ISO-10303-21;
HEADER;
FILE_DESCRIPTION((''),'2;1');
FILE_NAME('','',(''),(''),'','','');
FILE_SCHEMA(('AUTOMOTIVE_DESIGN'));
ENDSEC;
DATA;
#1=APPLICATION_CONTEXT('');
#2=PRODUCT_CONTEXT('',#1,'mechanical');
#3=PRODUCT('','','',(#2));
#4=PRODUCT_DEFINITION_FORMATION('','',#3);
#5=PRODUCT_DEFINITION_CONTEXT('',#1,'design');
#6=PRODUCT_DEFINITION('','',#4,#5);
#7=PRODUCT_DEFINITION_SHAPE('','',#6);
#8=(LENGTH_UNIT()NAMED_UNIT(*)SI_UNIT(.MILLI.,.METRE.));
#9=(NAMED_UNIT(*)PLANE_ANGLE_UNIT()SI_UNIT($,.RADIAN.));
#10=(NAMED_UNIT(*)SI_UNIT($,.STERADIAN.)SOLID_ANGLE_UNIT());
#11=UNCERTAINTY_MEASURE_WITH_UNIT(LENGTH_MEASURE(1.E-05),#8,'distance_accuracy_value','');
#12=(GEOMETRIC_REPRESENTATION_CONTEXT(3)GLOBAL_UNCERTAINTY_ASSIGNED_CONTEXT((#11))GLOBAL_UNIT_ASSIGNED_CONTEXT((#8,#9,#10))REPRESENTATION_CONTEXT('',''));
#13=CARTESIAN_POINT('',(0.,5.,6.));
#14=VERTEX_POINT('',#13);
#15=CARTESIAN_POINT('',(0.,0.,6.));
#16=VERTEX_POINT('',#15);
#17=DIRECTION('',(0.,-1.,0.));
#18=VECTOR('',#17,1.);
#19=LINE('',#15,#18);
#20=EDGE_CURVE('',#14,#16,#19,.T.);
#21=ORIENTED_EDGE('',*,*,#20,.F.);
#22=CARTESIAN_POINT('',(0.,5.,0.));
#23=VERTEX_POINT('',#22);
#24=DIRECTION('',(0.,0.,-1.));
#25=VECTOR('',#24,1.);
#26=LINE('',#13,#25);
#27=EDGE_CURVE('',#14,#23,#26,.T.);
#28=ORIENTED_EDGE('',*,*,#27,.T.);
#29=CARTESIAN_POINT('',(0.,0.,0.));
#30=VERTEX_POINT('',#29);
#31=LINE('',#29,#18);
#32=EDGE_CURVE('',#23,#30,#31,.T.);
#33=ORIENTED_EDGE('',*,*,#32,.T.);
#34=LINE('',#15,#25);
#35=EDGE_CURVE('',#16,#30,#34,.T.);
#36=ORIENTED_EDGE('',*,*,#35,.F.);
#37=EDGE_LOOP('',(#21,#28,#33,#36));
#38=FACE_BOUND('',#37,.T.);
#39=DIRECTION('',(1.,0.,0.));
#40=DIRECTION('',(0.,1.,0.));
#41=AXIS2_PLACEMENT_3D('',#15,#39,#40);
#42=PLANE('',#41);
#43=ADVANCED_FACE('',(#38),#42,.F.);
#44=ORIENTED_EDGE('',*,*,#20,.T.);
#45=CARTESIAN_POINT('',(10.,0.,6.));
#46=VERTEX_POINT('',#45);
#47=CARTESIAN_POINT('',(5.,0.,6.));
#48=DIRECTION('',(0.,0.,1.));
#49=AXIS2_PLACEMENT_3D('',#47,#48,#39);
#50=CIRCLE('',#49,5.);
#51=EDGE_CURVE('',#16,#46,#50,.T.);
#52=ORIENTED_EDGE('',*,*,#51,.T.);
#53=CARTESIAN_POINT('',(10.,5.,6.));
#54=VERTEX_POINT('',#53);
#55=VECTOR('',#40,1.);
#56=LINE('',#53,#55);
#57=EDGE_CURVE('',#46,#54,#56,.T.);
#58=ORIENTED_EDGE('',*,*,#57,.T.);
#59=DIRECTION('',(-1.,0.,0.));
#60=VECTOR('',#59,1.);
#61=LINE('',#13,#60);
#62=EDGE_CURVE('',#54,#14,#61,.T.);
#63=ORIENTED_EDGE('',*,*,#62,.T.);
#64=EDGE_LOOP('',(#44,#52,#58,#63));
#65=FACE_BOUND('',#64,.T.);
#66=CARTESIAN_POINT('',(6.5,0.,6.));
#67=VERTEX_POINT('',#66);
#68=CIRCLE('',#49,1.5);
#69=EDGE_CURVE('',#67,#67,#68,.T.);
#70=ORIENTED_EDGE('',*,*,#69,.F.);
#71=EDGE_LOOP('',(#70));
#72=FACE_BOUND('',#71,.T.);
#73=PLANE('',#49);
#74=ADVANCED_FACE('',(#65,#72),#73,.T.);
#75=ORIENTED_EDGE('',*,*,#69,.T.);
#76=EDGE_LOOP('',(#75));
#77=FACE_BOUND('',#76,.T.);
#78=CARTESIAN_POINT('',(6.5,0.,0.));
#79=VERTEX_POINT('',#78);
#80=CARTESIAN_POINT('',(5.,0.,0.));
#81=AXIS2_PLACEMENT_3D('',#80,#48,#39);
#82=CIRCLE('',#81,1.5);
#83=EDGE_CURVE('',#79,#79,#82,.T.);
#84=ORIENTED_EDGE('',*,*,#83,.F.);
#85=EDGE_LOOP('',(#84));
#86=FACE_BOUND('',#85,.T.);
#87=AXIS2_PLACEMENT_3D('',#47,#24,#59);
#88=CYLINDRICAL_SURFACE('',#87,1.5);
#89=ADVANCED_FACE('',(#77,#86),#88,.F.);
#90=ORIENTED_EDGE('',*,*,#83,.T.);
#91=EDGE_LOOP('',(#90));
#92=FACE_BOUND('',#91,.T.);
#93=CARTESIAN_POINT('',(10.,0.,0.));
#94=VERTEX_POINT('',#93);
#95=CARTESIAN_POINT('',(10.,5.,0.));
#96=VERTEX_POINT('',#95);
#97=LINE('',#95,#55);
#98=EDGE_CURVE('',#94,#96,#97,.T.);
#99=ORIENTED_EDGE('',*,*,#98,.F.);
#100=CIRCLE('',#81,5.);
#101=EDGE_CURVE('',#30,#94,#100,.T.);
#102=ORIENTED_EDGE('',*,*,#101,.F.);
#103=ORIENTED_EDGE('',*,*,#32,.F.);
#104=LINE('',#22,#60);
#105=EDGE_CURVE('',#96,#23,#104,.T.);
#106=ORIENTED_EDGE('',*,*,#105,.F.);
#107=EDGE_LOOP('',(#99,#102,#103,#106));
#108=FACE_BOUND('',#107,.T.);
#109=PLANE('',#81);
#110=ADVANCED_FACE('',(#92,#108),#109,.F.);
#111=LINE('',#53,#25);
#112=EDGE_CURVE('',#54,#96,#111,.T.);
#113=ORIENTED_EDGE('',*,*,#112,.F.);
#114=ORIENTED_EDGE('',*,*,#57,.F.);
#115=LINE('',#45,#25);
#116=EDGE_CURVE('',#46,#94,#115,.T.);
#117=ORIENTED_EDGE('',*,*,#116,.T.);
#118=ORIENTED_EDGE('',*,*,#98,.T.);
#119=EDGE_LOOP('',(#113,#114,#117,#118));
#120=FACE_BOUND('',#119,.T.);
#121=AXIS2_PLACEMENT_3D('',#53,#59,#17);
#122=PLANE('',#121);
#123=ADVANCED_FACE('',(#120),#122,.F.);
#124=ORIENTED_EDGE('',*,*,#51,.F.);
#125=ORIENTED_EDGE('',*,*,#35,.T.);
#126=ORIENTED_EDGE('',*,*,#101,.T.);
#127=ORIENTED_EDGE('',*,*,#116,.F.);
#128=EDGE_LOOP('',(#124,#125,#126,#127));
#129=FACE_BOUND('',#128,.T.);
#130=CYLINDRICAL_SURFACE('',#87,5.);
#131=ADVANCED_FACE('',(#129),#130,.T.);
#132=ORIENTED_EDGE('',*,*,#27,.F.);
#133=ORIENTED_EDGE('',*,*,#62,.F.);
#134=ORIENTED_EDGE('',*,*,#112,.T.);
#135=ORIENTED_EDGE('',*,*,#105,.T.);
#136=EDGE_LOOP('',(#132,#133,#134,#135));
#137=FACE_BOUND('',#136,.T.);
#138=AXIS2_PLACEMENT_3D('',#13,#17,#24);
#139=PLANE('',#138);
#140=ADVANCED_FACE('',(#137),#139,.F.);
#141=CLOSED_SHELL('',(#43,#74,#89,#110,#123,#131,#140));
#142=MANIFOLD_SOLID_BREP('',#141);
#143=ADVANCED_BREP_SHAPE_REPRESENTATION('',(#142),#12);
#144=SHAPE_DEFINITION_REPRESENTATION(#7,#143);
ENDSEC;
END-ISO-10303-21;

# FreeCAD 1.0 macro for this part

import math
import FreeCAD as App
import Part
import Sketcher

doc = App.newDocument("Part")
body = doc.addObject("PartDesign::Body", "Body")

# Sketch on XY plane
sketch1 = body.newObject("Sketcher::SketchObject", "Sketch")
sketch1.AttachmentSupport = (doc.getObject("XY_Plane"), [""])
sketch1.MapMode = "FlatFace"
sketch1.addGeometry([
    Part.LineSegment(App.Vector(0, 5, 0), App.Vector(0, 0, 0)),  # 0
    Part.ArcOfCircle(Part.Circle(App.Vector(5, 0, 0), App.Vector(0, 0, 1), 5), math.radians(180), math.radians(360)),  # 1
    Part.LineSegment(App.Vector(10, 0, 0), App.Vector(10, 5, 0)),  # 2
    Part.LineSegment(App.Vector(10, 5, 0), App.Vector(0, 5, 0)),  # 3
    Part.Circle(App.Vector(5, 0, 0), App.Vector(0, 0, 1), 1.5),  # 4
], False)
sketch1.addConstraint([
    Sketcher.Constraint("Tangent", 0, 2, 1, 1),
    Sketcher.Constraint("Tangent", 1, 2, 2, 1),
    Sketcher.Constraint("Coincident", 2, 2, 3, 1),
    Sketcher.Constraint("Coincident", 3, 2, 0, 1),
    Sketcher.Constraint("Vertical", 0),
    Sketcher.Constraint("Vertical", 2),
    Sketcher.Constraint("Horizontal", 3),
    Sketcher.Constraint("Coincident", 0, 2, -1, 1),
    Sketcher.Constraint("Coincident", 4, 3, 1, 3),
    Sketcher.Constraint("Diameter", 4, 3.0),
    Sketcher.Constraint("Radius", 1, 5.0),
    Sketcher.Constraint("DistanceY", 0, 2, 0, 1, 5.0),
])
pad1 = body.newObject("PartDesign::Pad", "Pad")
pad1.Profile = sketch1
pad1.Length = 6

doc.recompute()
